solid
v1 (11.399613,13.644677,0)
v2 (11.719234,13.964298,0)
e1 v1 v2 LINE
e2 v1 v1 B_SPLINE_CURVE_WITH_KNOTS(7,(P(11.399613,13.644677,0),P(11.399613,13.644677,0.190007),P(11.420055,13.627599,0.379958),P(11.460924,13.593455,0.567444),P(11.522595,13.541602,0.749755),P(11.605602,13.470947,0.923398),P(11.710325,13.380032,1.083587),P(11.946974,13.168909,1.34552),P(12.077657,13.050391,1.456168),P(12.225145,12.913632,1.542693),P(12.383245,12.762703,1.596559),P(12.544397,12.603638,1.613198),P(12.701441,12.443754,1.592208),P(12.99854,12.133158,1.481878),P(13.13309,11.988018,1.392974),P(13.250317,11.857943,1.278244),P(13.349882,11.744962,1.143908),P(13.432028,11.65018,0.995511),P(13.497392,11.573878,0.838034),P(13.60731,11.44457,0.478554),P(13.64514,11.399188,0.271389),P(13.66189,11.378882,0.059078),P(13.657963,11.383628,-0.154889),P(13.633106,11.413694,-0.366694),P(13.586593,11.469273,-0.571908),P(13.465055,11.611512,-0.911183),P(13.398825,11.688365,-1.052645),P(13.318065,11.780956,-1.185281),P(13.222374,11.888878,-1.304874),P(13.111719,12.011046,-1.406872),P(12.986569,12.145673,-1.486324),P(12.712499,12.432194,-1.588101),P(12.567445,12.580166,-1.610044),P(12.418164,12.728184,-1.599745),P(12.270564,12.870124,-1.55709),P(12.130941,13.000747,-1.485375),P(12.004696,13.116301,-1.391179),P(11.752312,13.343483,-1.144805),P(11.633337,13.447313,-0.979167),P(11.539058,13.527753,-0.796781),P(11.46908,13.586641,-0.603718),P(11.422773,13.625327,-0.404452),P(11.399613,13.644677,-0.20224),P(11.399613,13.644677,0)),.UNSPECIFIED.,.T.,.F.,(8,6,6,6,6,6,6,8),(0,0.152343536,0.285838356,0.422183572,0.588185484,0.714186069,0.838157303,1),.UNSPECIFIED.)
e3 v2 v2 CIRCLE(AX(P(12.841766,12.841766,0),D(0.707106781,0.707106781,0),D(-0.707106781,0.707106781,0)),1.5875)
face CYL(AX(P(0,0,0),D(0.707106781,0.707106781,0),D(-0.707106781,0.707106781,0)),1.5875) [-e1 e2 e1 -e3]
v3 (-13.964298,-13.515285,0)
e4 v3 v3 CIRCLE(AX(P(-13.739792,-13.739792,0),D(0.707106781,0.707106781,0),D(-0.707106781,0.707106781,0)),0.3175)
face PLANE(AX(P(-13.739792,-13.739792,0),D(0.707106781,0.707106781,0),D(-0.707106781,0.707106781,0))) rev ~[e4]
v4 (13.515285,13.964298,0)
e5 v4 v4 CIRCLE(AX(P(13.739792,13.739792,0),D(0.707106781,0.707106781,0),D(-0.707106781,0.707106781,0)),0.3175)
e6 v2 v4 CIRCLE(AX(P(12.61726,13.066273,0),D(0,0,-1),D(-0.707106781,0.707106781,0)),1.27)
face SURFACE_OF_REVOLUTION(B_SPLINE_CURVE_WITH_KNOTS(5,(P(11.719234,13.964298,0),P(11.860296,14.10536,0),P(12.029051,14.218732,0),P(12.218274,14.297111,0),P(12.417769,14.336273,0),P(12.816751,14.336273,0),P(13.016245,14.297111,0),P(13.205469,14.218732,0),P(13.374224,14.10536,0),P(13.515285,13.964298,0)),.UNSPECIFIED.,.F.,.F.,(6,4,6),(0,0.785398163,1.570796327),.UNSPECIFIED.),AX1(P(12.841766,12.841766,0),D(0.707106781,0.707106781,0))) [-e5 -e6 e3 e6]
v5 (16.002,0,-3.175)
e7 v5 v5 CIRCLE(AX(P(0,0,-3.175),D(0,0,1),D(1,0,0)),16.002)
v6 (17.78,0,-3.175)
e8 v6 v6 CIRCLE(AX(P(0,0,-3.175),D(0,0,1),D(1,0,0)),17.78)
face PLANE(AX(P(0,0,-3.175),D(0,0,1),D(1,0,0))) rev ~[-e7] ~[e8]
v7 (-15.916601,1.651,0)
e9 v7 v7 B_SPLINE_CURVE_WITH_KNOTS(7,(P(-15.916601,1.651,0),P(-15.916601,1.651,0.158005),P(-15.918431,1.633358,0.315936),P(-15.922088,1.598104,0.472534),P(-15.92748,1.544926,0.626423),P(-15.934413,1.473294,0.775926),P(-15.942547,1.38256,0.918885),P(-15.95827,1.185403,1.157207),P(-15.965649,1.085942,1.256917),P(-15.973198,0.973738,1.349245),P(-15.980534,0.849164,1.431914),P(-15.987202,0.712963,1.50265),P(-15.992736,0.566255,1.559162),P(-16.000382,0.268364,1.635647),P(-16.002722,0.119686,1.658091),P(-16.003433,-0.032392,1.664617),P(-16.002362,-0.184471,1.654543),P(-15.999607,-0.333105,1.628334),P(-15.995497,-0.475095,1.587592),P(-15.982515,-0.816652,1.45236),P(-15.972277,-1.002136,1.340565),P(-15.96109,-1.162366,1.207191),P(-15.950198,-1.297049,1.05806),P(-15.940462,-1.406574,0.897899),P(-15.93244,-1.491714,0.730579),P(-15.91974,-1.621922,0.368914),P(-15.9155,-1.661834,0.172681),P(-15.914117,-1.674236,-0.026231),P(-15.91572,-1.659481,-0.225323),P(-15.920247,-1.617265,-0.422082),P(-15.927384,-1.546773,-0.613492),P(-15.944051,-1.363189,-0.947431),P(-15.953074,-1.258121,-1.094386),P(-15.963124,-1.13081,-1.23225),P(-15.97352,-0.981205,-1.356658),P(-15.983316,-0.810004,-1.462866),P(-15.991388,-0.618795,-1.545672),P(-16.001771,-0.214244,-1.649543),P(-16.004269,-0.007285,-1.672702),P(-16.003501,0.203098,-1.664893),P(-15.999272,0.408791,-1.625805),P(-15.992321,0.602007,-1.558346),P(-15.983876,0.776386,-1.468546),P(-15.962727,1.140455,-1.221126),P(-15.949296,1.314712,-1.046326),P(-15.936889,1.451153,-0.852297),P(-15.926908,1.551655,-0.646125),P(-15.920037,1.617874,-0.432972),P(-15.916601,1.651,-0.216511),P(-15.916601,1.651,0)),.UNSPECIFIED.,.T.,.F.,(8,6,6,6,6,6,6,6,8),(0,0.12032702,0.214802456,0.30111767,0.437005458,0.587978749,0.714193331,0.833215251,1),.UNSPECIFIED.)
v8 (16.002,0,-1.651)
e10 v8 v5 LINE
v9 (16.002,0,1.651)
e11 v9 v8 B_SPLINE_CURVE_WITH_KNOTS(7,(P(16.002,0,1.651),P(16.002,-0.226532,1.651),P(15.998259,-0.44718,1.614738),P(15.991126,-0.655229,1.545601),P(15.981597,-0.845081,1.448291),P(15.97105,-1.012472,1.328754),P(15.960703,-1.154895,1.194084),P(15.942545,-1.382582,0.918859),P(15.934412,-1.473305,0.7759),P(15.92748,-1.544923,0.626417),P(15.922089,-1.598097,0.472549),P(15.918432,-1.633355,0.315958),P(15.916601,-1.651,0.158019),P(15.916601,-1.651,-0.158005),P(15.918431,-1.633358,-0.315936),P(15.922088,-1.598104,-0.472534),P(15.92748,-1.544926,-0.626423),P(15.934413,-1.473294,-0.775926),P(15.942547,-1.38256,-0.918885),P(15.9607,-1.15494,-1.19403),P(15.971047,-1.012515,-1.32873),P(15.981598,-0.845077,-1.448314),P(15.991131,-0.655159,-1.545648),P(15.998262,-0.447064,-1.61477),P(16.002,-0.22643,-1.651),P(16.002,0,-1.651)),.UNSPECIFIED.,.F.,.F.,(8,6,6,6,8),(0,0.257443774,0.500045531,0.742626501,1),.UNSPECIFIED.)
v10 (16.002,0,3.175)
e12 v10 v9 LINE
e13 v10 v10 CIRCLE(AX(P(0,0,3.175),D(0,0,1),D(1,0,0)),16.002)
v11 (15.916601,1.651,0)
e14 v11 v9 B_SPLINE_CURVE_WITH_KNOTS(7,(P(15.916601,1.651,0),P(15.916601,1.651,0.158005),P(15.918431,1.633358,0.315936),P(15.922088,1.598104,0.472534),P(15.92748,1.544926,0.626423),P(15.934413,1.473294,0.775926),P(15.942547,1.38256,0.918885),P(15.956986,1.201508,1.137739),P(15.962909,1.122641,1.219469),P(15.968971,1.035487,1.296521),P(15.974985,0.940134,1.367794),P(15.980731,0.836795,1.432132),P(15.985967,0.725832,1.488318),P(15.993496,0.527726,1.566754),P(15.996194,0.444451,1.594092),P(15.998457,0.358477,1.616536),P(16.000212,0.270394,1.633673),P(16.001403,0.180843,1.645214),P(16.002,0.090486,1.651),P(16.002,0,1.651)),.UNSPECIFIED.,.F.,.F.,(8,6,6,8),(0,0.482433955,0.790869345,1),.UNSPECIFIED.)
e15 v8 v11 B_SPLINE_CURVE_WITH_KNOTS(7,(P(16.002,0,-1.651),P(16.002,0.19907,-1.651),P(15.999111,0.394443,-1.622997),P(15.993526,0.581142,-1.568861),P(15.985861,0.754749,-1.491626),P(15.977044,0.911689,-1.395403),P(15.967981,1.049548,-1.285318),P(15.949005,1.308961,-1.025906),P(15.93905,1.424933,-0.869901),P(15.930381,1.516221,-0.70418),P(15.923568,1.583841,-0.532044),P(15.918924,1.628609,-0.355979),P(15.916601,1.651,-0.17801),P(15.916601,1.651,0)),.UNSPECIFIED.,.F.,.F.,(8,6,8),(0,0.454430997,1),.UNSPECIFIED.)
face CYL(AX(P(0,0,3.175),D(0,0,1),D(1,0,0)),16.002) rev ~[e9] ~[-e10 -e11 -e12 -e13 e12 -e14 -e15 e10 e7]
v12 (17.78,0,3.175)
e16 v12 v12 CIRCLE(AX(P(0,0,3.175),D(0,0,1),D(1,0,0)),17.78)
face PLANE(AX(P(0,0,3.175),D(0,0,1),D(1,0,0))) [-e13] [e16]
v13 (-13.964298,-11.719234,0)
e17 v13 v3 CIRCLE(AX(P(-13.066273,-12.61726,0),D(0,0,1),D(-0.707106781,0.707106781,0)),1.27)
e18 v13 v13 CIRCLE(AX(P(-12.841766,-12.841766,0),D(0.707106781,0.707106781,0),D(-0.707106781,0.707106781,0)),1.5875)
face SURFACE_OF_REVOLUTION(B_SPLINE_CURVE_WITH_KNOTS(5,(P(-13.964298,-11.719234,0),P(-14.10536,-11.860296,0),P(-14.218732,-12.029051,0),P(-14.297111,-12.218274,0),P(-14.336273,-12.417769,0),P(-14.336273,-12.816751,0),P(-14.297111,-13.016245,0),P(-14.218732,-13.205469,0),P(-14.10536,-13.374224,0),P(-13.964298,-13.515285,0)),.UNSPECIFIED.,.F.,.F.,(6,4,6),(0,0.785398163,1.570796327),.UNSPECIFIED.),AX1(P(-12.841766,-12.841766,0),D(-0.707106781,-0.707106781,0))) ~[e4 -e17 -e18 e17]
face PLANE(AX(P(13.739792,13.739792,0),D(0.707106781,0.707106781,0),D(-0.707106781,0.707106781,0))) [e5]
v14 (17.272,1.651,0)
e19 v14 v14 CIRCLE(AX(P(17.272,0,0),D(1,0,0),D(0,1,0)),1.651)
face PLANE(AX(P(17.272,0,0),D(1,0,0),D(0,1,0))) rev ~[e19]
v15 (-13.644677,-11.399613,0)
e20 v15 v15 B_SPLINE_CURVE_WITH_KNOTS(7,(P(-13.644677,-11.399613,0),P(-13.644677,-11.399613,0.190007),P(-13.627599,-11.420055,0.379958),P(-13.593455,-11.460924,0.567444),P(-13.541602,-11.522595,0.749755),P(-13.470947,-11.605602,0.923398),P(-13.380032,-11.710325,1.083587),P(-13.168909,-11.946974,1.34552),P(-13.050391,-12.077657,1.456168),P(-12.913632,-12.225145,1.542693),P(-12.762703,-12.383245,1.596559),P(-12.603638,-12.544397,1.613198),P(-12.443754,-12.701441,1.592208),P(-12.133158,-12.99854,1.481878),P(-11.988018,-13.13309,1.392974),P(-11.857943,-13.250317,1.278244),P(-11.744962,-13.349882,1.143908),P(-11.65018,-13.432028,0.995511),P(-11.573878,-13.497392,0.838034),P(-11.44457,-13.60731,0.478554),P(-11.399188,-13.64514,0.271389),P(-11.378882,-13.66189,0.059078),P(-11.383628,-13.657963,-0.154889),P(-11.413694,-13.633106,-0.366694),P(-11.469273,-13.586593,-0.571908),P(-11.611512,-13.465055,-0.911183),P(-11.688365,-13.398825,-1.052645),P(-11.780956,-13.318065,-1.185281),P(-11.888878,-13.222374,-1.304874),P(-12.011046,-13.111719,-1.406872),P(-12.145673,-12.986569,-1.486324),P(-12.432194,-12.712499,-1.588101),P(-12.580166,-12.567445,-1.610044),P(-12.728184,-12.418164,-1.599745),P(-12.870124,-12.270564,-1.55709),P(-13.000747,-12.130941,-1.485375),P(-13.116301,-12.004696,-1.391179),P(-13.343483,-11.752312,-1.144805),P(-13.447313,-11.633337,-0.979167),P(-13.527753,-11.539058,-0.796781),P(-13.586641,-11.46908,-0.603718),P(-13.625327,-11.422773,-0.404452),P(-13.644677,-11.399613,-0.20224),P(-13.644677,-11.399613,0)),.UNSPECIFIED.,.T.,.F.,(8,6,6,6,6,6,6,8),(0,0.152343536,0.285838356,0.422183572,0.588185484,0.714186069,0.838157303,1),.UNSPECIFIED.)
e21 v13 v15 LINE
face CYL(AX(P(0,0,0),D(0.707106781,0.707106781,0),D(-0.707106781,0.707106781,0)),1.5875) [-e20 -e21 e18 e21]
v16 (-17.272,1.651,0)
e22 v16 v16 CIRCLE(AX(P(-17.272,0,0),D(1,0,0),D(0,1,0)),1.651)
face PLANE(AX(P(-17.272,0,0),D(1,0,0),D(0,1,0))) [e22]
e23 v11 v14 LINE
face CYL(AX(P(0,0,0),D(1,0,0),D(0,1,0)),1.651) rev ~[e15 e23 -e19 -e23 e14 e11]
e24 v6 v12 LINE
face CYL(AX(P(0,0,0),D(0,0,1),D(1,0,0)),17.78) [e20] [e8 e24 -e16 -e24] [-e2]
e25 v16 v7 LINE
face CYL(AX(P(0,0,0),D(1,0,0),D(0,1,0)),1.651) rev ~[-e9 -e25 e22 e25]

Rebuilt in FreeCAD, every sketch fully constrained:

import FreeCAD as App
import Part
import Sketcher

V = App.Vector
Q = App.Units.Quantity


def edges_at(feature, points):
    """Names of the edges that pass closest to the given points."""
    edges = feature.Shape.Edges
    near = lambda p: min(range(len(edges)), key=lambda i: edges[i].distToShape(Part.Vertex(*p))[0])
    return sorted({f"Edge{near(p) + 1}" for p in points})

doc = App.newDocument("Part")
params = doc.addObject("Spreadsheet::Sheet", "Params")
for row, (alias, value) in enumerate([
    ("sketch1_diameter", "1.4 in"),
    ("pad1_length", "0.25 in"),
    ("sketch2_diameter", "0.13 in"),
    ("pocket1_length", "1.36 in"),
    ("sketch3_diameter", "0.125 in"),
    ("pad2_length", "1.53 in"),
    ("sketch4_diameter", "1.26 in"),
    ("fillet_radius", "0.05 in"),
], start=1):
    params.set(f"A{row}", alias)
    params.set(f"B{row}", "=" + value)
    params.setAlias(f"B{row}", alias)

body = doc.addObject("PartDesign::Body", "Body")

# Sketch on XY plane
sketch1 = doc.addObject("Sketcher::SketchObject", "Sketch")
body.addObject(sketch1)
sketch1.AttachmentSupport = (doc.XY_Plane, [""])
sketch1.MapMode = "FlatFace"
sketch1.addGeometry(Part.Circle(V(0, 0, 0), V(0, 0, 1), 18), False)
sketch1.addConstraint([
    Sketcher.Constraint("Coincident", 0, 3, -1, 1),
    Sketcher.Constraint("Diameter", 0, Q("1.4 in")),
])
sketch1.setExpression("Constraints[1]", "Params.sketch1_diameter")
pad1 = doc.addObject("PartDesign::Pad", "Pad")
body.addObject(pad1)
pad1.Profile = sketch1
pad1.setExpression("Length", "Params.pad1_length")
pad1.Midplane = True

# Sketch on YZ plane
sketch2 = doc.addObject("Sketcher::SketchObject", "Sketch001")
body.addObject(sketch2)
sketch2.AttachmentSupport = (doc.YZ_Plane, [""])
sketch2.MapMode = "FlatFace"
sketch2.addGeometry(Part.Circle(V(0, 0, 0), V(0, 0, 1), 1.7), False)
sketch2.addConstraint([
    Sketcher.Constraint("Coincident", 0, 3, -1, 1),
    Sketcher.Constraint("Diameter", 0, Q("0.13 in")),
])
sketch2.setExpression("Constraints[1]", "Params.sketch2_diameter")
pocket1 = doc.addObject("PartDesign::Pocket", "Pocket")
body.addObject(pocket1)
pocket1.Profile = sketch2
pocket1.setExpression("Length", "Params.pocket1_length")
pocket1.Midplane = True

# Sketch on an angled plane
sketch3 = doc.addObject("Sketcher::SketchObject", "Sketch002")
body.addObject(sketch3)
sketch3.Placement = App.Placement(V(0, 0, 0), App.Rotation(V(-0.707106781, 0.707106781, 0), V(0, 0, 0.999999999), V(0.707106781, 0.707106781, 0), "ZXY"))
sketch3.addGeometry(Part.Circle(V(0, 0, 0), V(0, 0, 1), 1.6), False)
sketch3.addConstraint([
    Sketcher.Constraint("Coincident", 0, 3, -1, 1),
    Sketcher.Constraint("Diameter", 0, Q("0.125 in")),
])
sketch3.setExpression("Constraints[1]", "Params.sketch3_diameter")
pad2 = doc.addObject("PartDesign::Pad", "Pad001")
body.addObject(pad2)
pad2.Profile = sketch3
pad2.setExpression("Length", "Params.pad2_length")
pad2.Midplane = True

# Sketch on XY plane
sketch4 = doc.addObject("Sketcher::SketchObject", "Sketch003")
body.addObject(sketch4)
sketch4.AttachmentSupport = (doc.XY_Plane, [""])
sketch4.MapMode = "FlatFace"
sketch4.AttachmentOffset = App.Placement(V(0, 0, 0.125 * 25.4), App.Rotation())
sketch4.addGeometry(Part.Circle(V(0, 0, 0), V(0, 0, 1), 16), False)
sketch4.addConstraint([
    Sketcher.Constraint("Coincident", 0, 3, -1, 1),
    Sketcher.Constraint("Diameter", 0, Q("1.26 in")),
])
sketch4.setExpression("Constraints[1]", "Params.sketch4_diameter")
pocket2 = doc.addObject("PartDesign::Pocket", "Pocket001")
body.addObject(pocket2)
pocket2.Profile = sketch4
pocket2.Type = "ThroughAll"
doc.recompute()

fillet = doc.addObject("PartDesign::Fillet", "Fillet")
body.addObject(fillet)
fillet.Base = (pocket2, edges_at(pocket2, [(14.862, 12.617, 0), (-12.617, -14.862, 0)]))
fillet.setExpression("Radius", "Params.fillet_radius")

doc.recompute()
